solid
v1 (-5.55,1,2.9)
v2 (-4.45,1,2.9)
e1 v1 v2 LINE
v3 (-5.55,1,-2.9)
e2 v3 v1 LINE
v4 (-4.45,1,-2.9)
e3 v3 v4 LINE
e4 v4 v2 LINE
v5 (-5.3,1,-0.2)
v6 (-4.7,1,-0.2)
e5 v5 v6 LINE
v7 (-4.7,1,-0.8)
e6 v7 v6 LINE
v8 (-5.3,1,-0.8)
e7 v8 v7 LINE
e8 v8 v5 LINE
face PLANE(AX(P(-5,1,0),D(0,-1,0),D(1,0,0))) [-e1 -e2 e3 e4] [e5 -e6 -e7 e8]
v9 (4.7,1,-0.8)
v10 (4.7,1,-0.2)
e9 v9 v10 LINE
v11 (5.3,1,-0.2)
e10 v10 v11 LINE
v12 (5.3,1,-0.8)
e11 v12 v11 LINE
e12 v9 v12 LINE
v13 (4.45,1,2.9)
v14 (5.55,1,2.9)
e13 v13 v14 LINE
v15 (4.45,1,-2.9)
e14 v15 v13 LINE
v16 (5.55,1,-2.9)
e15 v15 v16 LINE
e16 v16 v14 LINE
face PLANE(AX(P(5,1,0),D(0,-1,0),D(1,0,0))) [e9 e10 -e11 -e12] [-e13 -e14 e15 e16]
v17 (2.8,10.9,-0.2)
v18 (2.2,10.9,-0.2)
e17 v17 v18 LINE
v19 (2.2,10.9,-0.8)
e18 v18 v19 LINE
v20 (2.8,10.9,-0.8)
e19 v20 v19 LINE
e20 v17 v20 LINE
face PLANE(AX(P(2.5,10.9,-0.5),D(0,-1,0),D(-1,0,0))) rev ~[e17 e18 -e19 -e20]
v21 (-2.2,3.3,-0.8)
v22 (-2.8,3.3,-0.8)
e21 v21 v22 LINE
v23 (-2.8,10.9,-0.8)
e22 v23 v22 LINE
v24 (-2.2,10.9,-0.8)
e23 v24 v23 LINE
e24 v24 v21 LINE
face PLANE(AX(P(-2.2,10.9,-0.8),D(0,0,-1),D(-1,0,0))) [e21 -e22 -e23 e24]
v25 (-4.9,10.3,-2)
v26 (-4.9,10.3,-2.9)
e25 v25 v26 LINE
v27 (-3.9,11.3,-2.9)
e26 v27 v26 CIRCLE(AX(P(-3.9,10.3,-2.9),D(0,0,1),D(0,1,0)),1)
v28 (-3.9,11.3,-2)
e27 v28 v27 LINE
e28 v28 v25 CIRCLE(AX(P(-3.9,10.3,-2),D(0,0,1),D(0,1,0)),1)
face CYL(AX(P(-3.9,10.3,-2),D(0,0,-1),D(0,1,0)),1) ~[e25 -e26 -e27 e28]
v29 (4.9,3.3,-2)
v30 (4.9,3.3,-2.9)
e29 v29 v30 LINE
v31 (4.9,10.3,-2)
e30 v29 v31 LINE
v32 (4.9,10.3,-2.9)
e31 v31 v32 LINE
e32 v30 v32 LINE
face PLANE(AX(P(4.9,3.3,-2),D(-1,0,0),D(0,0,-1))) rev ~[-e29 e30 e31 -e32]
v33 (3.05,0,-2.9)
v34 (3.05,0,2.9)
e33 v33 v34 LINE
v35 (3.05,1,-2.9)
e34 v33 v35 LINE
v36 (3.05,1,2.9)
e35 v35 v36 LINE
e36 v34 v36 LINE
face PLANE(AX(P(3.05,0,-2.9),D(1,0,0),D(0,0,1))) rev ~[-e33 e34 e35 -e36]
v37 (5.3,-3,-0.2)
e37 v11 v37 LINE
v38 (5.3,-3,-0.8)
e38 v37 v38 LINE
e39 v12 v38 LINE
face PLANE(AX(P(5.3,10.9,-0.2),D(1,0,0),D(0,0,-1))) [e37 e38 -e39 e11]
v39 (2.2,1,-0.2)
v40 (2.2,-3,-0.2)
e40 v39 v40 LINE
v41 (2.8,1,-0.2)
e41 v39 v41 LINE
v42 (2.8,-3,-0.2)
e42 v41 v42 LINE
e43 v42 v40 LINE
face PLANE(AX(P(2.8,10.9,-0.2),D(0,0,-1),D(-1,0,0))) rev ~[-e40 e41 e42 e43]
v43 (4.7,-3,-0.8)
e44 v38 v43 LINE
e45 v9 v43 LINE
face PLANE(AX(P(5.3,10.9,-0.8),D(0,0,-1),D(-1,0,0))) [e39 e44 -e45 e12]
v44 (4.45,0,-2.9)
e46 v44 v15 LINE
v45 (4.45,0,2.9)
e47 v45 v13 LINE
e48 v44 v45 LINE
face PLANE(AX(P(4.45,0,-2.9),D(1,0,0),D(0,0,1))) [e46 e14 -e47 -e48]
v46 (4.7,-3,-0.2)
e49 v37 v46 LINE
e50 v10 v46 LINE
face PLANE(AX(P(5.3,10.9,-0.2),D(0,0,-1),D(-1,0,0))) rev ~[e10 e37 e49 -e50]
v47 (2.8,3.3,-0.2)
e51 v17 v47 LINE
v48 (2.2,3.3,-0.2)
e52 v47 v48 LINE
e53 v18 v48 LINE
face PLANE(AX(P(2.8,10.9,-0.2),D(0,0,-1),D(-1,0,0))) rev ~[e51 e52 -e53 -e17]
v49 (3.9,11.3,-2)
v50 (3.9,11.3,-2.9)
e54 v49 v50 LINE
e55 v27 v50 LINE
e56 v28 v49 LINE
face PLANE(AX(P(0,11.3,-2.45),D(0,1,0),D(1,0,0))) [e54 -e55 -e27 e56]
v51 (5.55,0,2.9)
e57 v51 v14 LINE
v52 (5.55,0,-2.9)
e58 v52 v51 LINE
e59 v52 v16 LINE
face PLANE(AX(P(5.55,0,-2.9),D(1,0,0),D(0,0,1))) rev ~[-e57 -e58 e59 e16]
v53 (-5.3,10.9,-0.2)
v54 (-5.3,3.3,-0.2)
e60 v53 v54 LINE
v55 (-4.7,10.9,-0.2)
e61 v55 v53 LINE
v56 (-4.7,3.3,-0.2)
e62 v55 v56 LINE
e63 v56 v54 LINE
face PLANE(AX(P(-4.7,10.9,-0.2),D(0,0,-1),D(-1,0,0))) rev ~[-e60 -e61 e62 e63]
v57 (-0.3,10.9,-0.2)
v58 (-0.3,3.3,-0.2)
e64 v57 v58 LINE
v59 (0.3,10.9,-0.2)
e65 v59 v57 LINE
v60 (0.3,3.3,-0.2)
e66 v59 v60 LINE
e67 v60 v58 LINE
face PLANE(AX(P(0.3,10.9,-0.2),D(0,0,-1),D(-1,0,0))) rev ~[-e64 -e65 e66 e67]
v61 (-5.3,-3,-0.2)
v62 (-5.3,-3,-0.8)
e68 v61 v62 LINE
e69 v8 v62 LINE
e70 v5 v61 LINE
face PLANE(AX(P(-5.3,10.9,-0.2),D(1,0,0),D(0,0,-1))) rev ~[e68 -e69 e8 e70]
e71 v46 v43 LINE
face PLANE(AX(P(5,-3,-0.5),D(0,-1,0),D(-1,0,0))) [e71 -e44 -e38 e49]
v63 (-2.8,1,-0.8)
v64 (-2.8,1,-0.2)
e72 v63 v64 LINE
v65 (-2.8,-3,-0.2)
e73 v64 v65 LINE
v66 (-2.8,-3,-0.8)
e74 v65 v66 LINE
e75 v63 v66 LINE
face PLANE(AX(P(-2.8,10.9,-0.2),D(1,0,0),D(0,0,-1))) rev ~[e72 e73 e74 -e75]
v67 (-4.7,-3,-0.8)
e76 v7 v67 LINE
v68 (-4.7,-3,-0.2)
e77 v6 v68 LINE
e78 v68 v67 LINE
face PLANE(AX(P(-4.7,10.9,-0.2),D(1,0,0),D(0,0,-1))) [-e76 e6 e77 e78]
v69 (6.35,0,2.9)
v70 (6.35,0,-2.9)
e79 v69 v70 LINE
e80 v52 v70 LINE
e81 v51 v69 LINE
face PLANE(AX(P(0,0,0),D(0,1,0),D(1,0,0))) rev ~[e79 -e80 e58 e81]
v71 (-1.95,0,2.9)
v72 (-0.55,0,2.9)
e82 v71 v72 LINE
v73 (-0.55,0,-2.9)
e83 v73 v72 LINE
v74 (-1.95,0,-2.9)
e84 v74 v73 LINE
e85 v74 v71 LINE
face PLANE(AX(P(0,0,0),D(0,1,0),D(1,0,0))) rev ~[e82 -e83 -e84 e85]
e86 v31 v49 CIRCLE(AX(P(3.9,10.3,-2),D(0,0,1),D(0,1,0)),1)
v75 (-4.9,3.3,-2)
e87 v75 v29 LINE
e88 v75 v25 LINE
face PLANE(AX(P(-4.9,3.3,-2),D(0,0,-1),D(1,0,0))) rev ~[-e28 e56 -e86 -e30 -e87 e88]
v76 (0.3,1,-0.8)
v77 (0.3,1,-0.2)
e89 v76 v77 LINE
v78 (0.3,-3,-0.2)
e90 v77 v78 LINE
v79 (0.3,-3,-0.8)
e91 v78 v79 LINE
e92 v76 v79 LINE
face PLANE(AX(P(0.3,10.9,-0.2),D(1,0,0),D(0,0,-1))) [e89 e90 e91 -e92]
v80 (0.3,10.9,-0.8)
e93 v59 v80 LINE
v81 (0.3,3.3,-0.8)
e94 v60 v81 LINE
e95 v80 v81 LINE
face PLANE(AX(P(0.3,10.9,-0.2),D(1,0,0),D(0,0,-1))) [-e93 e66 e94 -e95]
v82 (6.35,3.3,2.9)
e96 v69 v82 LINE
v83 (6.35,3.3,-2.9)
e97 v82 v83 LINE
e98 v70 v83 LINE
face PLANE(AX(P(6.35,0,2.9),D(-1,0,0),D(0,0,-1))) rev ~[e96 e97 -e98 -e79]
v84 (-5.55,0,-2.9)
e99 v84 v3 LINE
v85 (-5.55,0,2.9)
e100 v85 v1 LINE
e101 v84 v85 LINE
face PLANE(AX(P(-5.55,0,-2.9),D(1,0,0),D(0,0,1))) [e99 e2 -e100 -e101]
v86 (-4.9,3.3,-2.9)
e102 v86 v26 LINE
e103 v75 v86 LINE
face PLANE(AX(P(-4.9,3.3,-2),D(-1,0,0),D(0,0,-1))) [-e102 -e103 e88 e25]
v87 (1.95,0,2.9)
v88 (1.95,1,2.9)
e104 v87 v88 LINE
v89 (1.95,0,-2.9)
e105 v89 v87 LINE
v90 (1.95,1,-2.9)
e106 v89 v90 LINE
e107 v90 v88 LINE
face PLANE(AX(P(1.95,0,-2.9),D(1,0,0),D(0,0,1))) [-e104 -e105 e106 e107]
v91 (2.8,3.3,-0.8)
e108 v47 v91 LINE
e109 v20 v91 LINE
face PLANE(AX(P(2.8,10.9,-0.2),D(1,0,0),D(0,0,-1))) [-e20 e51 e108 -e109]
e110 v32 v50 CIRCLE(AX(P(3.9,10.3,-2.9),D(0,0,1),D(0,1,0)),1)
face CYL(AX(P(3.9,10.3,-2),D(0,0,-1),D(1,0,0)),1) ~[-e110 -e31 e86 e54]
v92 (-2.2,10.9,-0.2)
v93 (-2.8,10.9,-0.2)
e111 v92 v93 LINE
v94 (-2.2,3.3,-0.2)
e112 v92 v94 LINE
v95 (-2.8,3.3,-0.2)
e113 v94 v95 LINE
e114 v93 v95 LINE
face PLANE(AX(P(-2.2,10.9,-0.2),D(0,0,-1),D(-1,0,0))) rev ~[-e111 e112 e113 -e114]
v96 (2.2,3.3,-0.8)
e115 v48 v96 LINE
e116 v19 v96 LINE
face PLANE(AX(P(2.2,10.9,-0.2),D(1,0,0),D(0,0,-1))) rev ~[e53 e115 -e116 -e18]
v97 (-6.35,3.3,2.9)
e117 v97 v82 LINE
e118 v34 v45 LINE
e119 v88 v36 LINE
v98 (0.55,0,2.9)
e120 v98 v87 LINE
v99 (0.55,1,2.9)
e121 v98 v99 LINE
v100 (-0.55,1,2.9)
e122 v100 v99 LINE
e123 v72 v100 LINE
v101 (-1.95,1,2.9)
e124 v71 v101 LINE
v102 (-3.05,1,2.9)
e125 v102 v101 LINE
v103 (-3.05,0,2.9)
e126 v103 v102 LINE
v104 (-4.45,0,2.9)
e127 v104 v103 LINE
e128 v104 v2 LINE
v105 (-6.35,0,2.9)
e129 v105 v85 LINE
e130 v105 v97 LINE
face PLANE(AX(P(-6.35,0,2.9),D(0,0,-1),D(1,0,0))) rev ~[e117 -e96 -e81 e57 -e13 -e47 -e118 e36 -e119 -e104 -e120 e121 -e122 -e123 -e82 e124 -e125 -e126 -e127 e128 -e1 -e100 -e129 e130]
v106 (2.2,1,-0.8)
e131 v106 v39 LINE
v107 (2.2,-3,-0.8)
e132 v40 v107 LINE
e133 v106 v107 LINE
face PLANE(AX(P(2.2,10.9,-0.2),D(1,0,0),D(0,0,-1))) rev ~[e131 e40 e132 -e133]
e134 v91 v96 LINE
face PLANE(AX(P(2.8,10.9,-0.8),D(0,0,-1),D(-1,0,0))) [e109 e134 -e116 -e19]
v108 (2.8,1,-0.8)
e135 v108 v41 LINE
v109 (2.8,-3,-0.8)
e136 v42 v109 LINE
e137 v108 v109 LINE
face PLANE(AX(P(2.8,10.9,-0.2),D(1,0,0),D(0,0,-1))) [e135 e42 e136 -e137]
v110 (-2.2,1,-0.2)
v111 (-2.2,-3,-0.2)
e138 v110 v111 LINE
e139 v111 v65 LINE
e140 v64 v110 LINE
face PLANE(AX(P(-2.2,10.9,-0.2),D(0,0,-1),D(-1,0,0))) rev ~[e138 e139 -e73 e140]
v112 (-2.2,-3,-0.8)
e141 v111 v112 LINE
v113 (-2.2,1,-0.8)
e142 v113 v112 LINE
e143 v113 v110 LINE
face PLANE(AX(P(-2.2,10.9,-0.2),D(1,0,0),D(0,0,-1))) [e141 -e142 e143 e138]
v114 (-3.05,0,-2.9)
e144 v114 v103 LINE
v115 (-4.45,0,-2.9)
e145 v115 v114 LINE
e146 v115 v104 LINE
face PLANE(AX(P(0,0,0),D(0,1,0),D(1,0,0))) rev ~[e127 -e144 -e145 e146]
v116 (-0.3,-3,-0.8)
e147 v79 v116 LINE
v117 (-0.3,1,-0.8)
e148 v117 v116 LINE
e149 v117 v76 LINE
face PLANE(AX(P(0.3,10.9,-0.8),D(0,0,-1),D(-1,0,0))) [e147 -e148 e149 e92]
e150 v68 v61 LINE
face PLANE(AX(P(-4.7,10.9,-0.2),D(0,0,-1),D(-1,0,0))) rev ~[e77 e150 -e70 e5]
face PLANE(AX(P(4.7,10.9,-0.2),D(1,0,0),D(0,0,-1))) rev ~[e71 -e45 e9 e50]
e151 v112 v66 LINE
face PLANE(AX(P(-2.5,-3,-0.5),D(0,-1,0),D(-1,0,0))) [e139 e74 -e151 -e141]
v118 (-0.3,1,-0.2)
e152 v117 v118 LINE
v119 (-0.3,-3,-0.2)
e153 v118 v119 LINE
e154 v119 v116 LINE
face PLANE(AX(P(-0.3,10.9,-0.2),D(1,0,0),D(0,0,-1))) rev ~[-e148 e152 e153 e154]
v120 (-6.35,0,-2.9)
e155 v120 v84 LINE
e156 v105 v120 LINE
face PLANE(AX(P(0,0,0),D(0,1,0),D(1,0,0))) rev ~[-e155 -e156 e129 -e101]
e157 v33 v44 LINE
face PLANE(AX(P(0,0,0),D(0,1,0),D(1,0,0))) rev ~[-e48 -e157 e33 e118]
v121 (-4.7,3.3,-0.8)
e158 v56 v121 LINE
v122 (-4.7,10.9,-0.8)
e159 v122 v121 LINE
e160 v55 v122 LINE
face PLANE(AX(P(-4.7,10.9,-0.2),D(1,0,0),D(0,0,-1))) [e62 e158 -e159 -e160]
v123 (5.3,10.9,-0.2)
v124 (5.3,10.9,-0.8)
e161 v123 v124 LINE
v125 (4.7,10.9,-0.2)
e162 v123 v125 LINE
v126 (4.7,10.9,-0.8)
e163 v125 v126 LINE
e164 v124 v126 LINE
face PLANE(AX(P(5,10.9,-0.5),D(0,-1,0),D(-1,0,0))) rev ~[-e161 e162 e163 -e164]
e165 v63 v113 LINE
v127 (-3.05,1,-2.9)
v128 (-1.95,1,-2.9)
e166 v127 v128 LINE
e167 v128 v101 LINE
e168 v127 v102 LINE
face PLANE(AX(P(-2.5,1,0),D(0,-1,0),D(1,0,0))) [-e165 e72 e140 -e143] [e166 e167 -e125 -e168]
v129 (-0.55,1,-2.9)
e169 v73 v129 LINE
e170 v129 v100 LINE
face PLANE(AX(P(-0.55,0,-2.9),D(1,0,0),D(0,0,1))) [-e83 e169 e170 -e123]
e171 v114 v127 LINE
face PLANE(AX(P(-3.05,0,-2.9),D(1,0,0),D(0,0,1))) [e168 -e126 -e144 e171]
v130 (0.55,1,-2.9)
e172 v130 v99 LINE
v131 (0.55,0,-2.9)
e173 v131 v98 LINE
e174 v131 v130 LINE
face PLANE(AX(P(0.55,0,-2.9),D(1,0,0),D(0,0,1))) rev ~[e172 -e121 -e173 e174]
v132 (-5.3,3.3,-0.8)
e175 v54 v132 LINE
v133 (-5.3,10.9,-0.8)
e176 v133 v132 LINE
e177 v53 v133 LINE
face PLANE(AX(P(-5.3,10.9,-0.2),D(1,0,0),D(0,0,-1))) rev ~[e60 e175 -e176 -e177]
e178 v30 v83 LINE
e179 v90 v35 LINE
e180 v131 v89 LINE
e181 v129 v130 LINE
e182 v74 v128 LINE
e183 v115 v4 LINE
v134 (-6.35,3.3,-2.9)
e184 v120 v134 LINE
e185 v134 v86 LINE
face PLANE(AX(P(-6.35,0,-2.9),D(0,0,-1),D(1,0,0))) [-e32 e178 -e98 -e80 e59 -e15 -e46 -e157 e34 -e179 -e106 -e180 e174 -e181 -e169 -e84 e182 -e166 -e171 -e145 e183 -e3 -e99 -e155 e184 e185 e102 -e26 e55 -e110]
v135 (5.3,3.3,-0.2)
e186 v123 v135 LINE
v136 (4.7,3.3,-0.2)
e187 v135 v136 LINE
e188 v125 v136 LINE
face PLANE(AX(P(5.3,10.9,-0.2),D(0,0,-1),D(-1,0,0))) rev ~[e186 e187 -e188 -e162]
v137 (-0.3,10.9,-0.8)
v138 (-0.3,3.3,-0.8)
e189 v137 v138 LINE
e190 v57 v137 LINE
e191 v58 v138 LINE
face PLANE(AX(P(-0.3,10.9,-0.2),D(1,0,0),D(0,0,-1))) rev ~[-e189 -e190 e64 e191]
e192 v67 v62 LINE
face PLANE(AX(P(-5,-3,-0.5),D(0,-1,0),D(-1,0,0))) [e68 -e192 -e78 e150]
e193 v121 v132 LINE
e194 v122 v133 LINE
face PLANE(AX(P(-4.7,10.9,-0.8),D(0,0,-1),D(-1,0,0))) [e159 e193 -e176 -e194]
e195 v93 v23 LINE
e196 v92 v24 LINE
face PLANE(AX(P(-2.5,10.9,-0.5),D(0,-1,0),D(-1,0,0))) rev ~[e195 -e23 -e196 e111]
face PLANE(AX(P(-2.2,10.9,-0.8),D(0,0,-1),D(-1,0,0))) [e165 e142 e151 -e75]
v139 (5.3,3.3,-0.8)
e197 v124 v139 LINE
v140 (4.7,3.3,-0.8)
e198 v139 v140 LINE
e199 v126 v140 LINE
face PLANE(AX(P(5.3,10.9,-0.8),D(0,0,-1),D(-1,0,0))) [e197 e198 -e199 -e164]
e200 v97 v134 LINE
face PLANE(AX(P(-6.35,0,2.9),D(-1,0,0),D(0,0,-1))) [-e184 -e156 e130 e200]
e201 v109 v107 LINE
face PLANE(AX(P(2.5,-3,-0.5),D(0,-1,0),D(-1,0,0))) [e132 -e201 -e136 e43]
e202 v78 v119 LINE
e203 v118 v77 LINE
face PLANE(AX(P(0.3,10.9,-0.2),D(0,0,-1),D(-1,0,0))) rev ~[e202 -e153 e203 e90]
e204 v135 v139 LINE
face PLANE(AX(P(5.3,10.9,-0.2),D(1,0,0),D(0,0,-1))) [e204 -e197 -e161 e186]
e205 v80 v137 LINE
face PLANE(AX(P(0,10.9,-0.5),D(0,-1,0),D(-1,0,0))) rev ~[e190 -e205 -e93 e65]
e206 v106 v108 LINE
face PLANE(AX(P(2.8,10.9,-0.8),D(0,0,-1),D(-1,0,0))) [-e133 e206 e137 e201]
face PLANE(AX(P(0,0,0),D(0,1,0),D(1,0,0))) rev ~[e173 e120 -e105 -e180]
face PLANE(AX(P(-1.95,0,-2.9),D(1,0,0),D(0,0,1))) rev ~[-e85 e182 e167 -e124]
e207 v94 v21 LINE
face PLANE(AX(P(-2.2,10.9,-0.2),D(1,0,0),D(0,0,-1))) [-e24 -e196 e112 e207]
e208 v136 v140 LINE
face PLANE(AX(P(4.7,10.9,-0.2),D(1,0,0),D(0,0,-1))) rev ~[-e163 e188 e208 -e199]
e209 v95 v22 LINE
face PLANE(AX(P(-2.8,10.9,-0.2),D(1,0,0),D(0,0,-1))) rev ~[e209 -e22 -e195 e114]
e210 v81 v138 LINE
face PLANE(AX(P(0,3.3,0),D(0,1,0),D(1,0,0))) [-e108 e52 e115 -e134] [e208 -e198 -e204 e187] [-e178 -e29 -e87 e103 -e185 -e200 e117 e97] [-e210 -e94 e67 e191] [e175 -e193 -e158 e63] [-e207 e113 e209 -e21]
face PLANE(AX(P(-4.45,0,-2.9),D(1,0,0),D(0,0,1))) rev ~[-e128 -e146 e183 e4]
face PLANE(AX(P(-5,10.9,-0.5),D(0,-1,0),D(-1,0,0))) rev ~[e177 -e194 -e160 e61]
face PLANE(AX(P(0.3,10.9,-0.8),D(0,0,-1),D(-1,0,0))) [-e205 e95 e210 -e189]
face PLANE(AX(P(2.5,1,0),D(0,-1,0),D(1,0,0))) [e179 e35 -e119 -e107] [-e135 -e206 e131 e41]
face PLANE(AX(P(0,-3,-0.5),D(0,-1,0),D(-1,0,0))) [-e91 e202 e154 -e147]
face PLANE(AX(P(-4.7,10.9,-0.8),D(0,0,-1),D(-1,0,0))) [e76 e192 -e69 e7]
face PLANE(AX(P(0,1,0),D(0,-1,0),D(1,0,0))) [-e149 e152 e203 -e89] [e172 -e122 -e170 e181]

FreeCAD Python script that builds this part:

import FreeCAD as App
import Part
import Sketcher
from FreeCAD import Vector


def edges_at(feature, points):
    """Names of the edges that pass closest to the given points."""
    edges = feature.Shape.Edges
    near = lambda p: min(range(len(edges)), key=lambda i: edges[i].distToShape(Part.Vertex(*p))[0])
    return sorted({f"Edge{near(p) + 1}" for p in points})


def add_polygon(sketch, points):
    """Adds a closed chain of lines whose ends are joined by coincident constraints."""
    first, n = sketch.GeometryCount, len(points)
    for a, b in zip(points, points[1:] + points[:1]):
        sketch.addGeometry(Part.LineSegment(App.Vector(*a, 0), App.Vector(*b, 0)), False)
    for i in range(n):
        sketch.addConstraint(Sketcher.Constraint("Coincident", first + i, 2, first + (i + 1) % n, 1))

doc = App.newDocument("Part")
body = doc.addObject("PartDesign::Body", "Body")

# Sketch on XZ plane
sketch1 = body.newObject("Sketcher::SketchObject", "Sketch")
sketch1.AttachmentSupport = (doc.getObject("XZ_Plane"), [""])
sketch1.MapMode = "FlatFace"
add_polygon(sketch1, [(-6, -3), (-6, 3), (6, 3), (6, -3)])  # lines 0-3
sketch1.addConstraint([
    Sketcher.Constraint("Vertical", 0),
    Sketcher.Constraint("Horizontal", 1),
    Sketcher.Constraint("Vertical", 2),
    Sketcher.Constraint("Horizontal", 3),
    Sketcher.Constraint("Symmetric", 0, 2, 2, 2, -1, 1),
    Sketcher.Constraint("DistanceX", 1, 1, 1, 2, 12.7),
    Sketcher.Constraint("DistanceY", 0, 1, 0, 2, 5.8),
])
pad1 = body.newObject("PartDesign::Pad", "Pad")
pad1.Profile = sketch1
pad1.Length = 3.3
pad1.Reversed = True

# Sketch on XZ plane
sketch2 = body.newObject("Sketcher::SketchObject", "Sketch001")
sketch2.AttachmentSupport = (doc.getObject("XZ_Plane"), [""])
sketch2.MapMode = "FlatFace"
sketch2.AttachmentOffset = App.Placement(Vector(0, 0, -3.3), App.Rotation())
add_polygon(sketch2, [(-4.9, -2.9), (-4.9, -2), (4.9, -2), (4.9, -2.9)])  # lines 0-3
sketch2.addConstraint([
    Sketcher.Constraint("Vertical", 0),
    Sketcher.Constraint("Horizontal", 1),
    Sketcher.Constraint("Vertical", 2),
    Sketcher.Constraint("Horizontal", 3),
    Sketcher.Constraint("DistanceX", 1, 1, 1, 2, 9.8),
    Sketcher.Constraint("DistanceY", 0, 1, 0, 2, 0.9),
    Sketcher.Constraint("DistanceY", 0, 2, -1, 1, 2.0),
    Sketcher.Constraint("DistanceX", 0, 2, -1, 1, 4.9),
])
pad2 = body.newObject("PartDesign::Pad", "Pad001")
pad2.Profile = sketch2
pad2.Length = 8
pad2.Reversed = True
doc.recompute()

fillet = body.newObject("PartDesign::Fillet", "Fillet")
fillet.Base = (pad2, edges_at(pad2, [(4.9, 11.3, -2.45)]))
fillet.Radius = 1
doc.recompute()

fillet2 = body.newObject("PartDesign::Fillet", "Fillet001")
fillet2.Base = (fillet, edges_at(fillet, [(-4.9, 11.3, -2.45)]))
fillet2.Radius = 1

# Sketch on XZ plane
sketch3 = body.newObject("Sketcher::SketchObject", "Sketch002")
sketch3.AttachmentSupport = (doc.getObject("XZ_Plane"), [""])
sketch3.MapMode = "FlatFace"
add_polygon(sketch3, [(-5.5, 2.9), (-5.5, -2.9), (-4.5, -2.9), (-4.5, 2.9)])  # lines 0-3
add_polygon(sketch3, [(-3, 2.9), (-3, -2.9), (-1.9, -2.9), (-1.9, 2.9)])  # lines 4-7
add_polygon(sketch3, [(-0.6, 2.9), (-0.6, -2.9), (0.6, -2.9), (0.6, 2.9)])  # lines 8-11
add_polygon(sketch3, [(1.9, 2.9), (1.9, -2.9), (3, -2.9), (3, 2.9)])  # lines 12-15
add_polygon(sketch3, [(4.5, 2.9), (4.5, -2.9), (5.5, -2.9), (5.5, 2.9)])  # lines 16-19
sketch3.addConstraint([
    Sketcher.Constraint("Vertical", 0),
    Sketcher.Constraint("Horizontal", 1),
    Sketcher.Constraint("Vertical", 2),
    Sketcher.Constraint("Horizontal", 3),
    Sketcher.Constraint("Vertical", 4),
    Sketcher.Constraint("Horizontal", 5),
    Sketcher.Constraint("Vertical", 6),
    Sketcher.Constraint("Horizontal", 7),
    Sketcher.Constraint("Vertical", 8),
    Sketcher.Constraint("Horizontal", 9),
    Sketcher.Constraint("Vertical", 10),
    Sketcher.Constraint("Horizontal", 11),
    Sketcher.Constraint("Vertical", 12),
    Sketcher.Constraint("Horizontal", 13),
    Sketcher.Constraint("Vertical", 14),
    Sketcher.Constraint("Horizontal", 15),
    Sketcher.Constraint("Vertical", 16),
    Sketcher.Constraint("Horizontal", 17),
    Sketcher.Constraint("Vertical", 18),
    Sketcher.Constraint("Horizontal", 19),
    Sketcher.Constraint("Symmetric", 8, 2, 10, 2, -1, 1),
    Sketcher.Constraint("Symmetric", 6, 2, 12, 2, -1, 1),
    Sketcher.Constraint("Symmetric", 4, 2, 14, 2, -1, 1),
    Sketcher.Constraint("Symmetric", 2, 2, 16, 2, -1, 1),
    Sketcher.Constraint("Symmetric", 0, 2, 18, 2, -1, 1),
    Sketcher.Constraint("Horizontal", 1, 2, 4, 2),
    Sketcher.Constraint("Horizontal", 3, 2, 6, 2),
    Sketcher.Constraint("Horizontal", 5, 2, 8, 2),
    Sketcher.Constraint("Horizontal", 7, 2, 10, 2),
    Sketcher.Constraint("Equal", 3, 5),
    Sketcher.Constraint("Equal", 7, 9),
    Sketcher.Constraint("DistanceX", 1, 1, 1, 2, 1.1),
    Sketcher.Constraint("DistanceY", 0, 2, 0, 1, 5.8),
    Sketcher.Constraint("DistanceX", 0, 2, 8, 2, 5.0),
    Sketcher.Constraint("DistanceX", 4, 2, 12, 2, 5.0),
])
pocket1 = body.newObject("PartDesign::Pocket", "Pocket")
pocket1.Profile = sketch3
pocket1.Length = 1

# Sketch on XZ plane
sketch4 = body.newObject("Sketcher::SketchObject", "Sketch003")
sketch4.AttachmentSupport = (doc.getObject("XZ_Plane"), [""])
sketch4.MapMode = "FlatFace"
sketch4.AttachmentOffset = App.Placement(Vector(0, 0, -1), App.Rotation())
add_polygon(sketch4, [(-4.7, -0.8), (-4.7, -0.2), (-5.3, -0.2), (-5.3, -0.8)])  # lines 0-3
add_polygon(sketch4, [(-2.2, -0.8), (-2.2, -0.2), (-2.8, -0.2), (-2.8, -0.8)])  # lines 4-7
add_polygon(sketch4, [(0.3, -0.8), (0.3, -0.2), (-0.3, -0.2), (-0.3, -0.8)])  # lines 8-11
add_polygon(sketch4, [(2.8, -0.8), (2.8, -0.2), (2.2, -0.2), (2.2, -0.8)])  # lines 12-15
add_polygon(sketch4, [(5.3, -0.8), (5.3, -0.2), (4.7, -0.2), (4.7, -0.8)])  # lines 16-19
sketch4.addConstraint([
    Sketcher.Constraint("Vertical", 0),
    Sketcher.Constraint("Horizontal", 1),
    Sketcher.Constraint("Vertical", 2),
    Sketcher.Constraint("Horizontal", 3),
    Sketcher.Constraint("Vertical", 4),
    Sketcher.Constraint("Horizontal", 5),
    Sketcher.Constraint("Vertical", 6),
    Sketcher.Constraint("Horizontal", 7),
    Sketcher.Constraint("Vertical", 8),
    Sketcher.Constraint("Horizontal", 9),
    Sketcher.Constraint("Vertical", 10),
    Sketcher.Constraint("Horizontal", 11),
    Sketcher.Constraint("Vertical", 12),
    Sketcher.Constraint("Horizontal", 13),
    Sketcher.Constraint("Vertical", 14),
    Sketcher.Constraint("Horizontal", 15),
    Sketcher.Constraint("Vertical", 16),
    Sketcher.Constraint("Horizontal", 17),
    Sketcher.Constraint("Vertical", 18),
    Sketcher.Constraint("Horizontal", 19),
    Sketcher.Constraint("Symmetric", 5, 2, 12, 2, -2),
    Sketcher.Constraint("Symmetric", 7, 2, 14, 2, -2),
    Sketcher.Constraint("Symmetric", 1, 2, 16, 2, -2),
    Sketcher.Constraint("Symmetric", 3, 2, 18, 2, -2),
    Sketcher.Constraint("Horizontal", 1, 2, 4, 2),
    Sketcher.Constraint("Horizontal", 3, 2, 6, 2),
    Sketcher.Constraint("Horizontal", 5, 2, 8, 2),
    Sketcher.Constraint("Horizontal", 7, 2, 10, 2),
    Sketcher.Constraint("Equal", 3, 5),
    Sketcher.Constraint("Equal", 7, 9),
    Sketcher.Constraint("Equal", 19, 0),
    Sketcher.Constraint("DistanceX", 1, 2, 1, 1, 0.6),
    Sketcher.Constraint("DistanceX", 0, 2, 8, 2, 5.0),
    Sketcher.Constraint("DistanceX", 4, 2, 12, 2, 5.0),
    Sketcher.Constraint("DistanceX", 8, 2, 16, 2, 5.0),
    Sketcher.Constraint("DistanceY", 0, 2, -1, 1, 0.2),
])
pad3 = body.newObject("PartDesign::Pad", "Pad002")
pad3.Profile = sketch4
pad3.Type = "TwoLengths"
pad3.Length = 4
pad3.Length2 = 9.9

doc.recompute()
